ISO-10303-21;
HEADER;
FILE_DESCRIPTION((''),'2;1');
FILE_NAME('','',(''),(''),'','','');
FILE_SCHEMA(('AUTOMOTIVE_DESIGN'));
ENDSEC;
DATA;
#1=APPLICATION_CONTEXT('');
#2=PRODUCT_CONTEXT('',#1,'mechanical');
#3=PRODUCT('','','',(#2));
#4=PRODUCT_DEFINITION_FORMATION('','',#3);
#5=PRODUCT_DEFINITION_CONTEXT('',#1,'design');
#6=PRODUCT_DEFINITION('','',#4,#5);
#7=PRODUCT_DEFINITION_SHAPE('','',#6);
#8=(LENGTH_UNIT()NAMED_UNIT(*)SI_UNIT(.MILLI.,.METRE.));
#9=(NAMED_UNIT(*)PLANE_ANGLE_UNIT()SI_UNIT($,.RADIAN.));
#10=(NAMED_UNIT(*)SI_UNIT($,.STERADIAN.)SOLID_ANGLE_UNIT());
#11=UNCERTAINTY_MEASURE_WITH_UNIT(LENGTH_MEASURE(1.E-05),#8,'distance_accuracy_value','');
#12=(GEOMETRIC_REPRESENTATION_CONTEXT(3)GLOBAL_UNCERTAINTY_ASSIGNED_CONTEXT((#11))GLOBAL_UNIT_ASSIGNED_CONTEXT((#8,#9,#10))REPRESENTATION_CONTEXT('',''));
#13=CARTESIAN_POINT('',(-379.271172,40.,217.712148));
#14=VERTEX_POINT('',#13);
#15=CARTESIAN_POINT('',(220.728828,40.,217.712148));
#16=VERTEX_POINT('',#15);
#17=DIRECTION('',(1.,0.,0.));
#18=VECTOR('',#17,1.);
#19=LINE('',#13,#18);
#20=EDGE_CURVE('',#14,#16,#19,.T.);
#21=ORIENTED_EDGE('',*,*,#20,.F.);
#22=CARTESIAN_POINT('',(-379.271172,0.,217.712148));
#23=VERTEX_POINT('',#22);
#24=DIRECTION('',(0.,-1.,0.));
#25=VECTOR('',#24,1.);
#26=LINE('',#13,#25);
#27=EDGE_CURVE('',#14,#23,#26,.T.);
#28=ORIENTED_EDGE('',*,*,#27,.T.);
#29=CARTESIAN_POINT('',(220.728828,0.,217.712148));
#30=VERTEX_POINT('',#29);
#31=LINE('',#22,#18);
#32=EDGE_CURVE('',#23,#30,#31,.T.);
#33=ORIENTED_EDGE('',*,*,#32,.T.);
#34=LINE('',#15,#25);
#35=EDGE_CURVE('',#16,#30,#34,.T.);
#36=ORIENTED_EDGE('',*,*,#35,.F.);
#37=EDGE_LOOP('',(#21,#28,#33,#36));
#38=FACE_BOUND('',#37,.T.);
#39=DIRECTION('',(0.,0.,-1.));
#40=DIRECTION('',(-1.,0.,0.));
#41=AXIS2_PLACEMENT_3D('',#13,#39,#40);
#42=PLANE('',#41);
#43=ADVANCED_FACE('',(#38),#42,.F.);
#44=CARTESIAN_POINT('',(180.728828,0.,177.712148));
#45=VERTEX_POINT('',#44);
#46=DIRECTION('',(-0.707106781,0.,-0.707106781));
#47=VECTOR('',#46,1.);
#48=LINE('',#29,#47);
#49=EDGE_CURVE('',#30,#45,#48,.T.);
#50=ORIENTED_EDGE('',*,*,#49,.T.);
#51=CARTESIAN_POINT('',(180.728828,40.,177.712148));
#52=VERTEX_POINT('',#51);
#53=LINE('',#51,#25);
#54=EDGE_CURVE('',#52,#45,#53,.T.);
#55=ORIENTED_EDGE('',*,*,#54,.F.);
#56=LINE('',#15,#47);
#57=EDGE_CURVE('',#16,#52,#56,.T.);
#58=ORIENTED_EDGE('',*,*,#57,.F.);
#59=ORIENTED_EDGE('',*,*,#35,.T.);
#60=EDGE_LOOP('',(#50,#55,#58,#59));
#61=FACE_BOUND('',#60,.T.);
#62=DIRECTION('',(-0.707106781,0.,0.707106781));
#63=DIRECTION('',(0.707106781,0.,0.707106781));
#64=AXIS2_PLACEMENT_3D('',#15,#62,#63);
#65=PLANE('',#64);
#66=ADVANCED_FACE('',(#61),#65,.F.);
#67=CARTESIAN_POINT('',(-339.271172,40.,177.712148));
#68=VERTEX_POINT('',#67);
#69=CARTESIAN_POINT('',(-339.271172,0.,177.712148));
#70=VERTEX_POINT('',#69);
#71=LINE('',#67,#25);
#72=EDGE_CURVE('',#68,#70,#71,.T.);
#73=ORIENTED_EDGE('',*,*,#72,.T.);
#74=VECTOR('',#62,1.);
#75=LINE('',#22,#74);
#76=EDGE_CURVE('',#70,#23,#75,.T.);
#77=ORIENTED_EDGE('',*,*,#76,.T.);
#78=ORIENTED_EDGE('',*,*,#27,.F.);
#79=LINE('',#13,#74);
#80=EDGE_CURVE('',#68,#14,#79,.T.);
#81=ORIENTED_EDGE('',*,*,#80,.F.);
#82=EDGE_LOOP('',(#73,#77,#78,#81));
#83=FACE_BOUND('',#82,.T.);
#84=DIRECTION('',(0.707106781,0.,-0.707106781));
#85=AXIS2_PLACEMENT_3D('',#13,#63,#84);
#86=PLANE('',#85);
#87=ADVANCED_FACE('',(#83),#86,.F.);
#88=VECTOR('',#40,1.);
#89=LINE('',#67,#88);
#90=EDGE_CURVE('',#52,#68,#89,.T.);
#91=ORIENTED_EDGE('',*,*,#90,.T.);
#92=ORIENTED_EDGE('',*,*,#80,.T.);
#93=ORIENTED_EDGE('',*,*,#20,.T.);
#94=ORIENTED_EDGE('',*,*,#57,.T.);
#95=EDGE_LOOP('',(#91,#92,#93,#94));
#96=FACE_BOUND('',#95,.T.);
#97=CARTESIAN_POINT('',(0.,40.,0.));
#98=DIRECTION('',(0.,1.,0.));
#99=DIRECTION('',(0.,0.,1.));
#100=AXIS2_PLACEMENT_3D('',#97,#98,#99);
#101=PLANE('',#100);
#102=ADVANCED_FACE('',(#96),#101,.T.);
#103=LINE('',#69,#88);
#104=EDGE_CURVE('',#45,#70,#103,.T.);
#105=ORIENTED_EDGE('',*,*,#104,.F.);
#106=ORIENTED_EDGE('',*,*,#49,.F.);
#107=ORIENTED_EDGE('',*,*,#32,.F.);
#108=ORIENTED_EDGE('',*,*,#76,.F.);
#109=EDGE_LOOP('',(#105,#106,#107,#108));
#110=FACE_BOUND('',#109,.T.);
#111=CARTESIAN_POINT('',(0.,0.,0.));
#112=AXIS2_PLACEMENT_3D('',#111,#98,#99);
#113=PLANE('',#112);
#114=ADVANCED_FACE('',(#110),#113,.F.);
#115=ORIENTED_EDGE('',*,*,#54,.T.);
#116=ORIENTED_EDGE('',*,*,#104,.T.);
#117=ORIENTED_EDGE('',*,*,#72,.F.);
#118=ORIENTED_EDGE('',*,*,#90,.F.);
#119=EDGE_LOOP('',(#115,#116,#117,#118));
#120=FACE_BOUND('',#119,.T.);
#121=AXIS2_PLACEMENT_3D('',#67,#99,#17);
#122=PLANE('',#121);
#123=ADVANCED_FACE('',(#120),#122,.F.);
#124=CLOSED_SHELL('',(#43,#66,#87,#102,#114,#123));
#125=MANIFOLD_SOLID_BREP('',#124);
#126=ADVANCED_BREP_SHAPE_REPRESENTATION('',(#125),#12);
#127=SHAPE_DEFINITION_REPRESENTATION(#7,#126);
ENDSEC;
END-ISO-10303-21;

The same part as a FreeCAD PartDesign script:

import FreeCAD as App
import Part
import Sketcher
Q = App.Units.Quantity

doc = App.newDocument("Part")
params = doc.addObject("Spreadsheet::Sheet", "Params")
for row, (alias, value) in enumerate([
    ("sketch1_width", "520 mm"),
    ("sketch1_width2", "600 mm"),
    ("pad1_length", "40 mm"),
], start=1):
    params.set(f"A{row}", alias)
    params.set(f"B{row}", "=" + value)
    params.setAlias(f"B{row}", alias)

body = doc.addObject("PartDesign::Body", "Body")

# Sketch on XZ plane
sketch1 = body.newObject("Sketcher::SketchObject", "Sketch")
sketch1.AttachmentSupport = (doc.getObject("XZ_Plane"), [""])
sketch1.MapMode = "FlatFace"
sketch1.addGeometry([
    Part.LineSegment(App.Vector(221, 218, 0), App.Vector(181, 178, 0)),
    Part.LineSegment(App.Vector(181, 178, 0), App.Vector(-339, 178, 0)),
    Part.LineSegment(App.Vector(-339, 178, 0), App.Vector(-379, 218, 0)),
    Part.LineSegment(App.Vector(-379, 218, 0), App.Vector(221, 218, 0)),
], False)
sketch1.addConstraint([
    Sketcher.Constraint("Coincident", 0, 2, 1, 1),
    Sketcher.Constraint("Coincident", 1, 2, 2, 1),
    Sketcher.Constraint("Coincident", 2, 2, 3, 1),
    Sketcher.Constraint("Coincident", 3, 2, 0, 1),
    Sketcher.Constraint("Horizontal", 1),
    Sketcher.Constraint("Horizontal", 3),
    Sketcher.Constraint("Perpendicular", 0, 2),
    Sketcher.Constraint("Equal", 0, 2),
    Sketcher.Constraint("DistanceX", 1, 2, 1, 1, Q("520 mm")),
    Sketcher.Constraint("DistanceX", 3, 1, 3, 2, Q("600 mm")),
    Sketcher.Constraint("DistanceX", -1, 1, 0, 2, Q("180.728828 mm")),
    Sketcher.Constraint("DistanceY", -1, 1, 0, 2, Q("177.712148 mm")),
])
sketch1.setExpression("Constraints[8]", "Params.sketch1_width")
sketch1.setExpression("Constraints[9]", "Params.sketch1_width2")
pad1 = body.newObject("PartDesign::Pad", "Pad")
pad1.Profile = sketch1
pad1.setExpression("Length", "Params.pad1_length")
pad1.Reversed = True

doc.recompute()
